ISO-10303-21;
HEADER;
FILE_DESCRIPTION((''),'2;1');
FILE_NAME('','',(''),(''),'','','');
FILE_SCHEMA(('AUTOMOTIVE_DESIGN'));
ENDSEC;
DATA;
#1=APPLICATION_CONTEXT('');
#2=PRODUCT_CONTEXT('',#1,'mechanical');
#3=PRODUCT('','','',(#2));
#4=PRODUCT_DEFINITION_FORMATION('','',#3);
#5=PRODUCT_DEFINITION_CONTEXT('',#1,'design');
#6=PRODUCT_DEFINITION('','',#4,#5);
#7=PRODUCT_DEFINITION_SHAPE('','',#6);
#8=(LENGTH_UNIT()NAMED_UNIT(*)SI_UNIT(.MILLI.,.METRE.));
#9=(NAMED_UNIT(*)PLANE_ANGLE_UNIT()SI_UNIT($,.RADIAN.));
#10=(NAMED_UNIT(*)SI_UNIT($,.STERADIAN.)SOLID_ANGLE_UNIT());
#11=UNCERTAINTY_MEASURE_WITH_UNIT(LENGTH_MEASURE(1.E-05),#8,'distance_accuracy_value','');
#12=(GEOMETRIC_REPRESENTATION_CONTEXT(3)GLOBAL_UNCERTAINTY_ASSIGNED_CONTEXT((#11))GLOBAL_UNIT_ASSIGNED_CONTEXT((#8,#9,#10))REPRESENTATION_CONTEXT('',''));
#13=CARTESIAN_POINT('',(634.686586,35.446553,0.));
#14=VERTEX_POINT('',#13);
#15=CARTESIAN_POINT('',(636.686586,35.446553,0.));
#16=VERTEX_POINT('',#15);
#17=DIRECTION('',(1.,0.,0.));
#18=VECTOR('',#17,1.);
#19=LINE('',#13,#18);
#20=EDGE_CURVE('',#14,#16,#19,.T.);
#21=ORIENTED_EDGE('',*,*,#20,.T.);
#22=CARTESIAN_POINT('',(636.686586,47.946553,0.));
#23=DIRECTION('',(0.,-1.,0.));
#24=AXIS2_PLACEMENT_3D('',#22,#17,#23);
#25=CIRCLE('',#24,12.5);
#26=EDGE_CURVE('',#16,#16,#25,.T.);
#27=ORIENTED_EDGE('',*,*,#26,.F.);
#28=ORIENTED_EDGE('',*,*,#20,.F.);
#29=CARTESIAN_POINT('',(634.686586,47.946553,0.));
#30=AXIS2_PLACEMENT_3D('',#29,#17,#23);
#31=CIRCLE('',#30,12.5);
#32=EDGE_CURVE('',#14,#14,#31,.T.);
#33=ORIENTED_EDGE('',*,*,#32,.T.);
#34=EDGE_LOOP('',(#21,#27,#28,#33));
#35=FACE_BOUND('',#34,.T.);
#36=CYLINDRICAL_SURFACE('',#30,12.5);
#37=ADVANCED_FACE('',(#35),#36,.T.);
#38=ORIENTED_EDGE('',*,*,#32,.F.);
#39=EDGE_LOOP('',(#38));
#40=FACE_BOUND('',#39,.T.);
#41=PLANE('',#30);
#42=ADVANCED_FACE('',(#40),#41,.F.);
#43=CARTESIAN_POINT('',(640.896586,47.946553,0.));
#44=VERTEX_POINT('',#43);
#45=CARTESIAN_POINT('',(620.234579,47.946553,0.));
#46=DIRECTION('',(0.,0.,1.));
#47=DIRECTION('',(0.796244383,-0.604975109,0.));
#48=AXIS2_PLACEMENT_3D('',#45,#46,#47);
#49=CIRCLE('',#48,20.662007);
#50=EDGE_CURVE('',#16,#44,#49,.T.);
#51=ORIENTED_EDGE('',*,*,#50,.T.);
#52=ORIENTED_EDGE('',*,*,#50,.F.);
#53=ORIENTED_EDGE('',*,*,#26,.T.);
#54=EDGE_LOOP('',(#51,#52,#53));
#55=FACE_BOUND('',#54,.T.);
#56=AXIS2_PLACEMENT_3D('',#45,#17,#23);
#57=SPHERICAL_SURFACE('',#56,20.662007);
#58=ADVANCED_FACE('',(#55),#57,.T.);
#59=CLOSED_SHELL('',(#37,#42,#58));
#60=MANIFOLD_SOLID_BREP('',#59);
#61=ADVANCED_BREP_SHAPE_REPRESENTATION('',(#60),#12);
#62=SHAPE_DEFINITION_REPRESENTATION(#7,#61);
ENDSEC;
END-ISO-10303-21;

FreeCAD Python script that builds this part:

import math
import FreeCAD as App
import Part
import Sketcher

V = App.Vector
Q = App.Units.Quantity

doc = App.newDocument("Part")
body = doc.addObject("PartDesign::Body", "Body")

# Sketch on XY plane
sketch1 = body.newObject("Sketcher::SketchObject", "Sketch")
sketch1.AttachmentSupport = (doc.getObject("XY_Plane"), [""])
sketch1.MapMode = "FlatFace"
sketch1.addGeometry(Part.LineSegment(V(634.686586, 60.446553, 0), V(634.686586, 47.946553, 0)), False)
sketch1.addGeometry(Part.LineSegment(V(634.686586, 47.946553, 0), V(640.896586, 47.946553, 0)), False)
sketch1.addGeometry(Part.ArcOfCircle(Part.Circle(V(620.234579, 47.946553, 0), V(0, 0, 1), 20.662007), math.radians(0), math.radians(37.227051)), False)
sketch1.addGeometry(Part.LineSegment(V(636.686586, 60.446553, 0), V(634.686586, 60.446553, 0)), False)
sketch1.addGeometry(Part.LineSegment(V(620.234579, 47.946553, 0), V(640.896586, 47.946553, 0)), True)  # axis
sketch1.addConstraint(Sketcher.Constraint("Coincident", 0, 2, 1, 1))
sketch1.addConstraint(Sketcher.Constraint("Coincident", 1, 2, 2, 1))
sketch1.addConstraint(Sketcher.Constraint("Coincident", 2, 2, 3, 1))
sketch1.addConstraint(Sketcher.Constraint("Coincident", 3, 2, 0, 1))
sketch1.addConstraint(Sketcher.Constraint("Vertical", 0))
sketch1.addConstraint(Sketcher.Constraint("Horizontal", 1))
sketch1.addConstraint(Sketcher.Constraint("Horizontal", 3))
sketch1.addConstraint(Sketcher.Constraint("Horizontal", 4))
sketch1.addConstraint(Sketcher.Constraint("Coincident", 4, 1, 2, 3))
sketch1.addConstraint(Sketcher.Constraint("Coincident", 4, 2, 1, 2))
sketch1.addConstraint(Sketcher.Constraint("DistanceX", 3, 2, 3, 1, Q("2 mm")))
sketch1.addConstraint(Sketcher.Constraint("DistanceY", 0, 2, 0, 1, Q("12.5 mm")))
sketch1.addConstraint(Sketcher.Constraint("DistanceX", 1, 1, 1, 2, Q("6.21 mm")))
sketch1.addConstraint(Sketcher.Constraint("DistanceX", -1, 1, 2, 3, Q("620.234579 mm")))
sketch1.addConstraint(Sketcher.Constraint("DistanceY", -1, 1, 2, 3, Q("47.946553 mm")))
revolution = body.newObject("PartDesign::Revolution", "Revolution")
revolution.Profile = sketch1
revolution.ReferenceAxis = (sketch1, ["Axis0"])
revolution.Angle = 360

doc.recompute()
